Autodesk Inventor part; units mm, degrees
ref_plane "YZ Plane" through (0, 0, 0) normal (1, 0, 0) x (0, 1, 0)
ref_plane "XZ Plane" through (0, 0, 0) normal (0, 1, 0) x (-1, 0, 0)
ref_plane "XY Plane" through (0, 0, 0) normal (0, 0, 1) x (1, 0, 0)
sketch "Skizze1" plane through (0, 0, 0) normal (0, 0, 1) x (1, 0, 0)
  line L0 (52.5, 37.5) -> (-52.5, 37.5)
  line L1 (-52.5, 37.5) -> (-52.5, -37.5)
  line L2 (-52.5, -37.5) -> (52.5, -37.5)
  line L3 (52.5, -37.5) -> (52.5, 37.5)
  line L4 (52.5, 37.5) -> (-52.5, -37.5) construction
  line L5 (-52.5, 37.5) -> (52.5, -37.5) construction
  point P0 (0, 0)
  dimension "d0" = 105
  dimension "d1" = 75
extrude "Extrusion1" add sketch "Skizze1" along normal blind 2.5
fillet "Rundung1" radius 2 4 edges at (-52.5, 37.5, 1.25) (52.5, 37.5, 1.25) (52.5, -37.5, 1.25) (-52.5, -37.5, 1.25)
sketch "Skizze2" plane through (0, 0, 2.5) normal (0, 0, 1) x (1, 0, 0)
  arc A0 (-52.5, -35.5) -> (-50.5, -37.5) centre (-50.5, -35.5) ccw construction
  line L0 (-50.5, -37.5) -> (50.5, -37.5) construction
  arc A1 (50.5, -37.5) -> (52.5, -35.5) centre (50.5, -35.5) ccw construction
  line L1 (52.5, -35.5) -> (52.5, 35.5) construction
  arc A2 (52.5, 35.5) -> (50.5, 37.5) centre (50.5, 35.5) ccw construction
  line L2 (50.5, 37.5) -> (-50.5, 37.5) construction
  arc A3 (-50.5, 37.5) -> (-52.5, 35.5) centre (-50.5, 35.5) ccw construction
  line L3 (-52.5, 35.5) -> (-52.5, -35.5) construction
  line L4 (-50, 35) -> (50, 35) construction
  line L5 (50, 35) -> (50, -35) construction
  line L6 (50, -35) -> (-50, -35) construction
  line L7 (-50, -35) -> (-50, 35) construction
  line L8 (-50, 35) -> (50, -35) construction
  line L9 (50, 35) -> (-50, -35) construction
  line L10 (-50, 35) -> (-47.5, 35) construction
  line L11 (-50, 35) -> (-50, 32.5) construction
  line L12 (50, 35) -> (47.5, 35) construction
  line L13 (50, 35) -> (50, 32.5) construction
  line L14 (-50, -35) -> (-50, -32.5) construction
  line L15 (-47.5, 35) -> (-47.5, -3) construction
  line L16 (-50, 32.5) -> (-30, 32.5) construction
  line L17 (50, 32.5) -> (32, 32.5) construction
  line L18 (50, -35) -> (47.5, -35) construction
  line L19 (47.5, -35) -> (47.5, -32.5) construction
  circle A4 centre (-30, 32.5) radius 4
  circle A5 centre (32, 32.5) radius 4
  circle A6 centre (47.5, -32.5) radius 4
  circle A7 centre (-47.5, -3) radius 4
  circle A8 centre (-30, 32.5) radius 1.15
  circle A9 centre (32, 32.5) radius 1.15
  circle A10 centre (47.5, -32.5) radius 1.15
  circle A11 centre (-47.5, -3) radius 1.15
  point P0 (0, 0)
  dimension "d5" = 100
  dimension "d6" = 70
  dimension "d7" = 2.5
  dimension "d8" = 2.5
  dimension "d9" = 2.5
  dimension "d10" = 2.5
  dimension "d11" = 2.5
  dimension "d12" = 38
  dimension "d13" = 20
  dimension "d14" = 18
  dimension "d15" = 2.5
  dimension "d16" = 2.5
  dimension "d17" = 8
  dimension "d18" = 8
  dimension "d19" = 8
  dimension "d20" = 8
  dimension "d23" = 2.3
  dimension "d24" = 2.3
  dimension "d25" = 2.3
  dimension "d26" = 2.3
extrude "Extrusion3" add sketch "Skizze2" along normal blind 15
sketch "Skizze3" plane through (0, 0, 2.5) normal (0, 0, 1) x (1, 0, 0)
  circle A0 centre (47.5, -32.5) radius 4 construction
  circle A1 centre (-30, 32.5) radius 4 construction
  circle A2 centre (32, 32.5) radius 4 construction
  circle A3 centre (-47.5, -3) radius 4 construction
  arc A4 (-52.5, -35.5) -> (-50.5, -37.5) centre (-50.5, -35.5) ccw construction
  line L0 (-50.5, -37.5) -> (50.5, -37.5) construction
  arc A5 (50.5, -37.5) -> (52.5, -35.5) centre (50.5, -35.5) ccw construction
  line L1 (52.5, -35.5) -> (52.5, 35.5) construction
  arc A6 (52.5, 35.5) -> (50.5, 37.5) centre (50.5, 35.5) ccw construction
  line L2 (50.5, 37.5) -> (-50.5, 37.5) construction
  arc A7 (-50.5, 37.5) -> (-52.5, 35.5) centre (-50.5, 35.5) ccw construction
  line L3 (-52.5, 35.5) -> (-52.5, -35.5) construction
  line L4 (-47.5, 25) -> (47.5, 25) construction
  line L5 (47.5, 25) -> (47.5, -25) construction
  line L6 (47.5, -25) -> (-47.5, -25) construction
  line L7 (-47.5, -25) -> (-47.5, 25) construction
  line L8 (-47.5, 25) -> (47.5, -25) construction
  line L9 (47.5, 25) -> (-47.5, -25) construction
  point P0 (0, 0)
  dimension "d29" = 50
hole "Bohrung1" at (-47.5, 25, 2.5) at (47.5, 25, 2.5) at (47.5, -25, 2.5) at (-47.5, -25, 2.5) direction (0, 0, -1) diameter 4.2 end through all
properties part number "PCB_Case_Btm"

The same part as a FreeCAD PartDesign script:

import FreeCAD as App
import Part
import Sketcher
from FreeCAD import Vector
Q = App.Units.Quantity


def edges_at(feature, points):
    """Names of the edges that pass closest to the given points."""
    edges = feature.Shape.Edges
    near = lambda p: min(range(len(edges)), key=lambda i: edges[i].distToShape(Part.Vertex(*p))[0])
    return sorted({f"Edge{near(p) + 1}" for p in points})


def add_polygon(sketch, points):
    """Adds a closed chain of lines whose ends are joined by coincident constraints."""
    first, n = sketch.GeometryCount, len(points)
    for a, b in zip(points, points[1:] + points[:1]):
        sketch.addGeometry(Part.LineSegment(App.Vector(*a, 0), App.Vector(*b, 0)), False)
    for i in range(n):
        sketch.addConstraint(Sketcher.Constraint("Coincident", first + i, 2, first + (i + 1) % n, 1))

doc = App.newDocument("Part")
body = doc.addObject("PartDesign::Body", "Body")

sketch1 = body.newObject("Sketcher::SketchObject", "Sketch")
sketch1.AttachmentSupport = (doc.getObject("XY_Plane"), [""])
sketch1.MapMode = "FlatFace"
add_polygon(sketch1, [(52.5, -37.5), (52.5, 37.5), (-52.5, 37.5), (-52.5, -37.5)])
sketch1.addConstraint(Sketcher.Constraint("Vertical", 0))
sketch1.addConstraint(Sketcher.Constraint("Horizontal", 1))
sketch1.addConstraint(Sketcher.Constraint("Vertical", 2))
sketch1.addConstraint(Sketcher.Constraint("Horizontal", 3))
sketch1.addConstraint(Sketcher.Constraint("Symmetric", 0, 2, 2, 2, -1, 1))
sketch1.addConstraint(Sketcher.Constraint("DistanceX", 1, 2, 1, 1, Q("105 mm")))
sketch1.addConstraint(Sketcher.Constraint("DistanceY", 0, 1, 0, 2, Q("75 mm")))
pad1 = body.newObject("PartDesign::Pad", "Pad")
pad1.Profile = sketch1
pad1.Length = 2.5
doc.recompute()

fillet = body.newObject("PartDesign::Fillet", "Fillet")
fillet.Base = (pad1, edges_at(pad1, [
    (-52.5, 37.5, 1.25),
    (52.5, 37.5, 1.25),
    (52.5, -37.5, 1.25),
    (-52.5, -37.5, 1.25),
]))
fillet.Radius = 2

sketch2 = body.newObject("Sketcher::SketchObject", "Sketch001")
sketch2.AttachmentSupport = (doc.getObject("XY_Plane"), [""])
sketch2.MapMode = "FlatFace"
sketch2.AttachmentOffset = App.Placement(Vector(0, 0, 2.5), App.Rotation())
sketch2.addGeometry(Part.Circle(Vector(-30, 32.5, 0), Vector(0, 0, 1), 4), False)
sketch2.addGeometry(Part.Circle(Vector(-30, 32.5, 0), Vector(0, 0, 1), 1.15), False)
sketch2.addGeometry(Part.Circle(Vector(32, 32.5, 0), Vector(0, 0, 1), 4), False)
sketch2.addGeometry(Part.Circle(Vector(32, 32.5, 0), Vector(0, 0, 1), 1.15), False)
sketch2.addGeometry(Part.Circle(Vector(47.5, -32.5, 0), Vector(0, 0, 1), 4), False)
sketch2.addGeometry(Part.Circle(Vector(47.5, -32.5, 0), Vector(0, 0, 1), 1.15), False)
sketch2.addGeometry(Part.Circle(Vector(-47.5, -3, 0), Vector(0, 0, 1), 4), False)
sketch2.addGeometry(Part.Circle(Vector(-47.5, -3, 0), Vector(0, 0, 1), 1.15), False)
sketch2.addConstraint(Sketcher.Constraint("Coincident", 1, 3, 0, 3))
sketch2.addConstraint(Sketcher.Constraint("Coincident", 3, 3, 2, 3))
sketch2.addConstraint(Sketcher.Constraint("Coincident", 5, 3, 4, 3))
sketch2.addConstraint(Sketcher.Constraint("Coincident", 7, 3, 6, 3))
sketch2.addConstraint(Sketcher.Constraint("Equal", 0, 2))
sketch2.addConstraint(Sketcher.Constraint("Equal", 1, 3))
sketch2.addConstraint(Sketcher.Constraint("Equal", 2, 4))
sketch2.addConstraint(Sketcher.Constraint("Equal", 3, 5))
sketch2.addConstraint(Sketcher.Constraint("Equal", 4, 6))
sketch2.addConstraint(Sketcher.Constraint("Equal", 5, 7))
sketch2.addConstraint(Sketcher.Constraint("Horizontal", 1, 3, 2, 3))
sketch2.addConstraint(Sketcher.Constraint("Diameter", 0, Q("8 mm")))
sketch2.addConstraint(Sketcher.Constraint("Diameter", 1, Q("2.3 mm")))
sketch2.addConstraint(Sketcher.Constraint("DistanceX", 0, 3, -1, 1, Q("30 mm")))
sketch2.addConstraint(Sketcher.Constraint("DistanceX", -1, 1, 2, 3, Q("32 mm")))
sketch2.addConstraint(Sketcher.Constraint("DistanceY", 6, 3, -1, 1, Q("3 mm")))
sketch2.addConstraint(Sketcher.Constraint("DistanceY", 4, 3, 2, 3, Q("65 mm")))
sketch2.addConstraint(Sketcher.Constraint("DistanceX", 6, 3, 4, 3, Q("95 mm")))
sketch2.addConstraint(Sketcher.Constraint("DistanceY", -1, 1, 0, 3, Q("32.5 mm")))
sketch2.addConstraint(Sketcher.Constraint("DistanceX", -1, 1, 4, 3, Q("47.5 mm")))
pad2 = body.newObject("PartDesign::Pad", "Pad001")
pad2.Profile = sketch2
pad2.Length = 15

sketch3 = body.newObject("Sketcher::SketchObject", "Sketch002")
sketch3.AttachmentSupport = (doc.getObject("XY_Plane"), [""])
sketch3.MapMode = "FlatFace"
sketch3.AttachmentOffset = App.Placement(Vector(0, 0, 2.5), App.Rotation())
sketch3.addGeometry(Part.Circle(Vector(-47.5, 25, 0), Vector(0, 0, 1), 2.1), False)
sketch3.addGeometry(Part.Circle(Vector(47.5, 25, 0), Vector(0, 0, 1), 2.1), False)
sketch3.addGeometry(Part.Circle(Vector(47.5, -25, 0), Vector(0, 0, 1), 2.1), False)
sketch3.addGeometry(Part.Circle(Vector(-47.5, -25, 0), Vector(0, 0, 1), 2.1), False)
sketch3.addConstraint(Sketcher.Constraint("Equal", 0, 1))
sketch3.addConstraint(Sketcher.Constraint("Equal", 1, 2))
sketch3.addConstraint(Sketcher.Constraint("Equal", 2, 3))
sketch3.addConstraint(Sketcher.Constraint("Symmetric", 0, 3, 2, 3, -1, 1))
sketch3.addConstraint(Sketcher.Constraint("Symmetric", 1, 3, 3, 3, -1, 1))
sketch3.addConstraint(Sketcher.Constraint("Symmetric", 0, 3, 1, 3, -2))
sketch3.addConstraint(Sketcher.Constraint("Diameter", 0, Q("4.2 mm")))
sketch3.addConstraint(Sketcher.Constraint("DistanceY", -1, 1, 0, 3, Q("25 mm")))
sketch3.addConstraint(Sketcher.Constraint("DistanceX", 0, 3, 1, 3, Q("95 mm")))
doc.recompute()
hole = body.newObject("PartDesign::Hole", "Hole")
hole.Profile = sketch3
hole.ThreadType = "None"
hole.Diameter = 4.2
hole.DepthType = "ThroughAll"

doc.recompute()
